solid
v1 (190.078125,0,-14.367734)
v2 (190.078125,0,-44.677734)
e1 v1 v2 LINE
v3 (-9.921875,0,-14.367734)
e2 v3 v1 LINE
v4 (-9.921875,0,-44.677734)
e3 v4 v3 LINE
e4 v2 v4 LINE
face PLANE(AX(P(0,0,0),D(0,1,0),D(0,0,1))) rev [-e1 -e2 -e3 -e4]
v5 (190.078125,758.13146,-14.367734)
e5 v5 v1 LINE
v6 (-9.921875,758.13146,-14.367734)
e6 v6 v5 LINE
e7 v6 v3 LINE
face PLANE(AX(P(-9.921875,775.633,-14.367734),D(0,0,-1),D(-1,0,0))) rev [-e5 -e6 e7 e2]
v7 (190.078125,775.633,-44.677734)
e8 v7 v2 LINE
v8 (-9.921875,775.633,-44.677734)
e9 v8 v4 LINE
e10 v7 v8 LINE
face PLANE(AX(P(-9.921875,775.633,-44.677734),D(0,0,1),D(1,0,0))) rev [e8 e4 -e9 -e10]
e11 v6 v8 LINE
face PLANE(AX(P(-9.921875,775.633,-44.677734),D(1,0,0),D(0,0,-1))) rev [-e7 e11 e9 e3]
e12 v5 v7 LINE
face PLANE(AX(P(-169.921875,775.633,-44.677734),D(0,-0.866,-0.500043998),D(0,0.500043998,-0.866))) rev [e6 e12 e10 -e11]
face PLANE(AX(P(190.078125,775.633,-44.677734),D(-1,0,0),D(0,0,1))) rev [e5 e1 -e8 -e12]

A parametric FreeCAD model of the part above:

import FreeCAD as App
import Part
import Sketcher

V = App.Vector


def add_polygon(sketch, points):
    """Adds a closed chain of lines whose ends are joined by coincident constraints."""
    first, n = sketch.GeometryCount, len(points)
    for a, b in zip(points, points[1:] + points[:1]):
        sketch.addGeometry(Part.LineSegment(App.Vector(*a, 0), App.Vector(*b, 0)), False)
    for i in range(n):
        sketch.addConstraint(Sketcher.Constraint("Coincident", first + i, 2, first + (i + 1) % n, 1))

doc = App.newDocument("Part")
body = doc.addObject("PartDesign::Body", "Body")

# Sketch on XZ plane
sketch1 = body.newObject("Sketcher::SketchObject", "Sketch")
sketch1.AttachmentSupport = (doc.getObject("XZ_Plane"), [""])
sketch1.MapMode = "FlatFace"
add_polygon(sketch1, [(-10, -45), (-10, -14), (190, -14), (190, -45)])  # lines 0-3
sketch1.addConstraint([
    Sketcher.Constraint("Vertical", 0),
    Sketcher.Constraint("Horizontal", 1),
    Sketcher.Constraint("Vertical", 2),
    Sketcher.Constraint("Horizontal", 3),
    Sketcher.Constraint("DistanceX", 1, 1, 1, 2, 200.0),
    Sketcher.Constraint("DistanceY", 0, 1, 0, 2, 30.31),
    Sketcher.Constraint("DistanceX", 0, 2, -1, 1, 9.921875),
    Sketcher.Constraint("DistanceY", 0, 2, -1, 1, 14.367734),
])
pad1 = body.newObject("PartDesign::Pad", "Pad")
pad1.Profile = sketch1
pad1.Length = 775.633
pad1.Reversed = True

# Sketch on YZ plane
sketch2 = body.newObject("Sketcher::SketchObject", "Sketch001")
sketch2.AttachmentSupport = (doc.getObject("YZ_Plane"), [""])
sketch2.MapMode = "FlatFace"
sketch2.AttachmentOffset = App.Placement(V(0, 0, 190.078125), App.Rotation())
add_polygon(sketch2, [(776, -45), (776, -14), (758, -14)])  # lines 0-2
sketch2.addConstraint([
    Sketcher.Constraint("Vertical", 0),
    Sketcher.Constraint("Horizontal", 1),
    Sketcher.Constraint("Distance", 2, 35.0),
    Sketcher.Constraint("DistanceY", 0, 1, 0, 2, 30.31),
    Sketcher.Constraint("DistanceX", -1, 1, 0, 2, 775.633),
    Sketcher.Constraint("DistanceY", 0, 2, -1, 1, 14.367734),
])
pocket1 = body.newObject("PartDesign::Pocket", "Pocket")
pocket1.Profile = sketch2
pocket1.Length = 360

doc.recompute()
